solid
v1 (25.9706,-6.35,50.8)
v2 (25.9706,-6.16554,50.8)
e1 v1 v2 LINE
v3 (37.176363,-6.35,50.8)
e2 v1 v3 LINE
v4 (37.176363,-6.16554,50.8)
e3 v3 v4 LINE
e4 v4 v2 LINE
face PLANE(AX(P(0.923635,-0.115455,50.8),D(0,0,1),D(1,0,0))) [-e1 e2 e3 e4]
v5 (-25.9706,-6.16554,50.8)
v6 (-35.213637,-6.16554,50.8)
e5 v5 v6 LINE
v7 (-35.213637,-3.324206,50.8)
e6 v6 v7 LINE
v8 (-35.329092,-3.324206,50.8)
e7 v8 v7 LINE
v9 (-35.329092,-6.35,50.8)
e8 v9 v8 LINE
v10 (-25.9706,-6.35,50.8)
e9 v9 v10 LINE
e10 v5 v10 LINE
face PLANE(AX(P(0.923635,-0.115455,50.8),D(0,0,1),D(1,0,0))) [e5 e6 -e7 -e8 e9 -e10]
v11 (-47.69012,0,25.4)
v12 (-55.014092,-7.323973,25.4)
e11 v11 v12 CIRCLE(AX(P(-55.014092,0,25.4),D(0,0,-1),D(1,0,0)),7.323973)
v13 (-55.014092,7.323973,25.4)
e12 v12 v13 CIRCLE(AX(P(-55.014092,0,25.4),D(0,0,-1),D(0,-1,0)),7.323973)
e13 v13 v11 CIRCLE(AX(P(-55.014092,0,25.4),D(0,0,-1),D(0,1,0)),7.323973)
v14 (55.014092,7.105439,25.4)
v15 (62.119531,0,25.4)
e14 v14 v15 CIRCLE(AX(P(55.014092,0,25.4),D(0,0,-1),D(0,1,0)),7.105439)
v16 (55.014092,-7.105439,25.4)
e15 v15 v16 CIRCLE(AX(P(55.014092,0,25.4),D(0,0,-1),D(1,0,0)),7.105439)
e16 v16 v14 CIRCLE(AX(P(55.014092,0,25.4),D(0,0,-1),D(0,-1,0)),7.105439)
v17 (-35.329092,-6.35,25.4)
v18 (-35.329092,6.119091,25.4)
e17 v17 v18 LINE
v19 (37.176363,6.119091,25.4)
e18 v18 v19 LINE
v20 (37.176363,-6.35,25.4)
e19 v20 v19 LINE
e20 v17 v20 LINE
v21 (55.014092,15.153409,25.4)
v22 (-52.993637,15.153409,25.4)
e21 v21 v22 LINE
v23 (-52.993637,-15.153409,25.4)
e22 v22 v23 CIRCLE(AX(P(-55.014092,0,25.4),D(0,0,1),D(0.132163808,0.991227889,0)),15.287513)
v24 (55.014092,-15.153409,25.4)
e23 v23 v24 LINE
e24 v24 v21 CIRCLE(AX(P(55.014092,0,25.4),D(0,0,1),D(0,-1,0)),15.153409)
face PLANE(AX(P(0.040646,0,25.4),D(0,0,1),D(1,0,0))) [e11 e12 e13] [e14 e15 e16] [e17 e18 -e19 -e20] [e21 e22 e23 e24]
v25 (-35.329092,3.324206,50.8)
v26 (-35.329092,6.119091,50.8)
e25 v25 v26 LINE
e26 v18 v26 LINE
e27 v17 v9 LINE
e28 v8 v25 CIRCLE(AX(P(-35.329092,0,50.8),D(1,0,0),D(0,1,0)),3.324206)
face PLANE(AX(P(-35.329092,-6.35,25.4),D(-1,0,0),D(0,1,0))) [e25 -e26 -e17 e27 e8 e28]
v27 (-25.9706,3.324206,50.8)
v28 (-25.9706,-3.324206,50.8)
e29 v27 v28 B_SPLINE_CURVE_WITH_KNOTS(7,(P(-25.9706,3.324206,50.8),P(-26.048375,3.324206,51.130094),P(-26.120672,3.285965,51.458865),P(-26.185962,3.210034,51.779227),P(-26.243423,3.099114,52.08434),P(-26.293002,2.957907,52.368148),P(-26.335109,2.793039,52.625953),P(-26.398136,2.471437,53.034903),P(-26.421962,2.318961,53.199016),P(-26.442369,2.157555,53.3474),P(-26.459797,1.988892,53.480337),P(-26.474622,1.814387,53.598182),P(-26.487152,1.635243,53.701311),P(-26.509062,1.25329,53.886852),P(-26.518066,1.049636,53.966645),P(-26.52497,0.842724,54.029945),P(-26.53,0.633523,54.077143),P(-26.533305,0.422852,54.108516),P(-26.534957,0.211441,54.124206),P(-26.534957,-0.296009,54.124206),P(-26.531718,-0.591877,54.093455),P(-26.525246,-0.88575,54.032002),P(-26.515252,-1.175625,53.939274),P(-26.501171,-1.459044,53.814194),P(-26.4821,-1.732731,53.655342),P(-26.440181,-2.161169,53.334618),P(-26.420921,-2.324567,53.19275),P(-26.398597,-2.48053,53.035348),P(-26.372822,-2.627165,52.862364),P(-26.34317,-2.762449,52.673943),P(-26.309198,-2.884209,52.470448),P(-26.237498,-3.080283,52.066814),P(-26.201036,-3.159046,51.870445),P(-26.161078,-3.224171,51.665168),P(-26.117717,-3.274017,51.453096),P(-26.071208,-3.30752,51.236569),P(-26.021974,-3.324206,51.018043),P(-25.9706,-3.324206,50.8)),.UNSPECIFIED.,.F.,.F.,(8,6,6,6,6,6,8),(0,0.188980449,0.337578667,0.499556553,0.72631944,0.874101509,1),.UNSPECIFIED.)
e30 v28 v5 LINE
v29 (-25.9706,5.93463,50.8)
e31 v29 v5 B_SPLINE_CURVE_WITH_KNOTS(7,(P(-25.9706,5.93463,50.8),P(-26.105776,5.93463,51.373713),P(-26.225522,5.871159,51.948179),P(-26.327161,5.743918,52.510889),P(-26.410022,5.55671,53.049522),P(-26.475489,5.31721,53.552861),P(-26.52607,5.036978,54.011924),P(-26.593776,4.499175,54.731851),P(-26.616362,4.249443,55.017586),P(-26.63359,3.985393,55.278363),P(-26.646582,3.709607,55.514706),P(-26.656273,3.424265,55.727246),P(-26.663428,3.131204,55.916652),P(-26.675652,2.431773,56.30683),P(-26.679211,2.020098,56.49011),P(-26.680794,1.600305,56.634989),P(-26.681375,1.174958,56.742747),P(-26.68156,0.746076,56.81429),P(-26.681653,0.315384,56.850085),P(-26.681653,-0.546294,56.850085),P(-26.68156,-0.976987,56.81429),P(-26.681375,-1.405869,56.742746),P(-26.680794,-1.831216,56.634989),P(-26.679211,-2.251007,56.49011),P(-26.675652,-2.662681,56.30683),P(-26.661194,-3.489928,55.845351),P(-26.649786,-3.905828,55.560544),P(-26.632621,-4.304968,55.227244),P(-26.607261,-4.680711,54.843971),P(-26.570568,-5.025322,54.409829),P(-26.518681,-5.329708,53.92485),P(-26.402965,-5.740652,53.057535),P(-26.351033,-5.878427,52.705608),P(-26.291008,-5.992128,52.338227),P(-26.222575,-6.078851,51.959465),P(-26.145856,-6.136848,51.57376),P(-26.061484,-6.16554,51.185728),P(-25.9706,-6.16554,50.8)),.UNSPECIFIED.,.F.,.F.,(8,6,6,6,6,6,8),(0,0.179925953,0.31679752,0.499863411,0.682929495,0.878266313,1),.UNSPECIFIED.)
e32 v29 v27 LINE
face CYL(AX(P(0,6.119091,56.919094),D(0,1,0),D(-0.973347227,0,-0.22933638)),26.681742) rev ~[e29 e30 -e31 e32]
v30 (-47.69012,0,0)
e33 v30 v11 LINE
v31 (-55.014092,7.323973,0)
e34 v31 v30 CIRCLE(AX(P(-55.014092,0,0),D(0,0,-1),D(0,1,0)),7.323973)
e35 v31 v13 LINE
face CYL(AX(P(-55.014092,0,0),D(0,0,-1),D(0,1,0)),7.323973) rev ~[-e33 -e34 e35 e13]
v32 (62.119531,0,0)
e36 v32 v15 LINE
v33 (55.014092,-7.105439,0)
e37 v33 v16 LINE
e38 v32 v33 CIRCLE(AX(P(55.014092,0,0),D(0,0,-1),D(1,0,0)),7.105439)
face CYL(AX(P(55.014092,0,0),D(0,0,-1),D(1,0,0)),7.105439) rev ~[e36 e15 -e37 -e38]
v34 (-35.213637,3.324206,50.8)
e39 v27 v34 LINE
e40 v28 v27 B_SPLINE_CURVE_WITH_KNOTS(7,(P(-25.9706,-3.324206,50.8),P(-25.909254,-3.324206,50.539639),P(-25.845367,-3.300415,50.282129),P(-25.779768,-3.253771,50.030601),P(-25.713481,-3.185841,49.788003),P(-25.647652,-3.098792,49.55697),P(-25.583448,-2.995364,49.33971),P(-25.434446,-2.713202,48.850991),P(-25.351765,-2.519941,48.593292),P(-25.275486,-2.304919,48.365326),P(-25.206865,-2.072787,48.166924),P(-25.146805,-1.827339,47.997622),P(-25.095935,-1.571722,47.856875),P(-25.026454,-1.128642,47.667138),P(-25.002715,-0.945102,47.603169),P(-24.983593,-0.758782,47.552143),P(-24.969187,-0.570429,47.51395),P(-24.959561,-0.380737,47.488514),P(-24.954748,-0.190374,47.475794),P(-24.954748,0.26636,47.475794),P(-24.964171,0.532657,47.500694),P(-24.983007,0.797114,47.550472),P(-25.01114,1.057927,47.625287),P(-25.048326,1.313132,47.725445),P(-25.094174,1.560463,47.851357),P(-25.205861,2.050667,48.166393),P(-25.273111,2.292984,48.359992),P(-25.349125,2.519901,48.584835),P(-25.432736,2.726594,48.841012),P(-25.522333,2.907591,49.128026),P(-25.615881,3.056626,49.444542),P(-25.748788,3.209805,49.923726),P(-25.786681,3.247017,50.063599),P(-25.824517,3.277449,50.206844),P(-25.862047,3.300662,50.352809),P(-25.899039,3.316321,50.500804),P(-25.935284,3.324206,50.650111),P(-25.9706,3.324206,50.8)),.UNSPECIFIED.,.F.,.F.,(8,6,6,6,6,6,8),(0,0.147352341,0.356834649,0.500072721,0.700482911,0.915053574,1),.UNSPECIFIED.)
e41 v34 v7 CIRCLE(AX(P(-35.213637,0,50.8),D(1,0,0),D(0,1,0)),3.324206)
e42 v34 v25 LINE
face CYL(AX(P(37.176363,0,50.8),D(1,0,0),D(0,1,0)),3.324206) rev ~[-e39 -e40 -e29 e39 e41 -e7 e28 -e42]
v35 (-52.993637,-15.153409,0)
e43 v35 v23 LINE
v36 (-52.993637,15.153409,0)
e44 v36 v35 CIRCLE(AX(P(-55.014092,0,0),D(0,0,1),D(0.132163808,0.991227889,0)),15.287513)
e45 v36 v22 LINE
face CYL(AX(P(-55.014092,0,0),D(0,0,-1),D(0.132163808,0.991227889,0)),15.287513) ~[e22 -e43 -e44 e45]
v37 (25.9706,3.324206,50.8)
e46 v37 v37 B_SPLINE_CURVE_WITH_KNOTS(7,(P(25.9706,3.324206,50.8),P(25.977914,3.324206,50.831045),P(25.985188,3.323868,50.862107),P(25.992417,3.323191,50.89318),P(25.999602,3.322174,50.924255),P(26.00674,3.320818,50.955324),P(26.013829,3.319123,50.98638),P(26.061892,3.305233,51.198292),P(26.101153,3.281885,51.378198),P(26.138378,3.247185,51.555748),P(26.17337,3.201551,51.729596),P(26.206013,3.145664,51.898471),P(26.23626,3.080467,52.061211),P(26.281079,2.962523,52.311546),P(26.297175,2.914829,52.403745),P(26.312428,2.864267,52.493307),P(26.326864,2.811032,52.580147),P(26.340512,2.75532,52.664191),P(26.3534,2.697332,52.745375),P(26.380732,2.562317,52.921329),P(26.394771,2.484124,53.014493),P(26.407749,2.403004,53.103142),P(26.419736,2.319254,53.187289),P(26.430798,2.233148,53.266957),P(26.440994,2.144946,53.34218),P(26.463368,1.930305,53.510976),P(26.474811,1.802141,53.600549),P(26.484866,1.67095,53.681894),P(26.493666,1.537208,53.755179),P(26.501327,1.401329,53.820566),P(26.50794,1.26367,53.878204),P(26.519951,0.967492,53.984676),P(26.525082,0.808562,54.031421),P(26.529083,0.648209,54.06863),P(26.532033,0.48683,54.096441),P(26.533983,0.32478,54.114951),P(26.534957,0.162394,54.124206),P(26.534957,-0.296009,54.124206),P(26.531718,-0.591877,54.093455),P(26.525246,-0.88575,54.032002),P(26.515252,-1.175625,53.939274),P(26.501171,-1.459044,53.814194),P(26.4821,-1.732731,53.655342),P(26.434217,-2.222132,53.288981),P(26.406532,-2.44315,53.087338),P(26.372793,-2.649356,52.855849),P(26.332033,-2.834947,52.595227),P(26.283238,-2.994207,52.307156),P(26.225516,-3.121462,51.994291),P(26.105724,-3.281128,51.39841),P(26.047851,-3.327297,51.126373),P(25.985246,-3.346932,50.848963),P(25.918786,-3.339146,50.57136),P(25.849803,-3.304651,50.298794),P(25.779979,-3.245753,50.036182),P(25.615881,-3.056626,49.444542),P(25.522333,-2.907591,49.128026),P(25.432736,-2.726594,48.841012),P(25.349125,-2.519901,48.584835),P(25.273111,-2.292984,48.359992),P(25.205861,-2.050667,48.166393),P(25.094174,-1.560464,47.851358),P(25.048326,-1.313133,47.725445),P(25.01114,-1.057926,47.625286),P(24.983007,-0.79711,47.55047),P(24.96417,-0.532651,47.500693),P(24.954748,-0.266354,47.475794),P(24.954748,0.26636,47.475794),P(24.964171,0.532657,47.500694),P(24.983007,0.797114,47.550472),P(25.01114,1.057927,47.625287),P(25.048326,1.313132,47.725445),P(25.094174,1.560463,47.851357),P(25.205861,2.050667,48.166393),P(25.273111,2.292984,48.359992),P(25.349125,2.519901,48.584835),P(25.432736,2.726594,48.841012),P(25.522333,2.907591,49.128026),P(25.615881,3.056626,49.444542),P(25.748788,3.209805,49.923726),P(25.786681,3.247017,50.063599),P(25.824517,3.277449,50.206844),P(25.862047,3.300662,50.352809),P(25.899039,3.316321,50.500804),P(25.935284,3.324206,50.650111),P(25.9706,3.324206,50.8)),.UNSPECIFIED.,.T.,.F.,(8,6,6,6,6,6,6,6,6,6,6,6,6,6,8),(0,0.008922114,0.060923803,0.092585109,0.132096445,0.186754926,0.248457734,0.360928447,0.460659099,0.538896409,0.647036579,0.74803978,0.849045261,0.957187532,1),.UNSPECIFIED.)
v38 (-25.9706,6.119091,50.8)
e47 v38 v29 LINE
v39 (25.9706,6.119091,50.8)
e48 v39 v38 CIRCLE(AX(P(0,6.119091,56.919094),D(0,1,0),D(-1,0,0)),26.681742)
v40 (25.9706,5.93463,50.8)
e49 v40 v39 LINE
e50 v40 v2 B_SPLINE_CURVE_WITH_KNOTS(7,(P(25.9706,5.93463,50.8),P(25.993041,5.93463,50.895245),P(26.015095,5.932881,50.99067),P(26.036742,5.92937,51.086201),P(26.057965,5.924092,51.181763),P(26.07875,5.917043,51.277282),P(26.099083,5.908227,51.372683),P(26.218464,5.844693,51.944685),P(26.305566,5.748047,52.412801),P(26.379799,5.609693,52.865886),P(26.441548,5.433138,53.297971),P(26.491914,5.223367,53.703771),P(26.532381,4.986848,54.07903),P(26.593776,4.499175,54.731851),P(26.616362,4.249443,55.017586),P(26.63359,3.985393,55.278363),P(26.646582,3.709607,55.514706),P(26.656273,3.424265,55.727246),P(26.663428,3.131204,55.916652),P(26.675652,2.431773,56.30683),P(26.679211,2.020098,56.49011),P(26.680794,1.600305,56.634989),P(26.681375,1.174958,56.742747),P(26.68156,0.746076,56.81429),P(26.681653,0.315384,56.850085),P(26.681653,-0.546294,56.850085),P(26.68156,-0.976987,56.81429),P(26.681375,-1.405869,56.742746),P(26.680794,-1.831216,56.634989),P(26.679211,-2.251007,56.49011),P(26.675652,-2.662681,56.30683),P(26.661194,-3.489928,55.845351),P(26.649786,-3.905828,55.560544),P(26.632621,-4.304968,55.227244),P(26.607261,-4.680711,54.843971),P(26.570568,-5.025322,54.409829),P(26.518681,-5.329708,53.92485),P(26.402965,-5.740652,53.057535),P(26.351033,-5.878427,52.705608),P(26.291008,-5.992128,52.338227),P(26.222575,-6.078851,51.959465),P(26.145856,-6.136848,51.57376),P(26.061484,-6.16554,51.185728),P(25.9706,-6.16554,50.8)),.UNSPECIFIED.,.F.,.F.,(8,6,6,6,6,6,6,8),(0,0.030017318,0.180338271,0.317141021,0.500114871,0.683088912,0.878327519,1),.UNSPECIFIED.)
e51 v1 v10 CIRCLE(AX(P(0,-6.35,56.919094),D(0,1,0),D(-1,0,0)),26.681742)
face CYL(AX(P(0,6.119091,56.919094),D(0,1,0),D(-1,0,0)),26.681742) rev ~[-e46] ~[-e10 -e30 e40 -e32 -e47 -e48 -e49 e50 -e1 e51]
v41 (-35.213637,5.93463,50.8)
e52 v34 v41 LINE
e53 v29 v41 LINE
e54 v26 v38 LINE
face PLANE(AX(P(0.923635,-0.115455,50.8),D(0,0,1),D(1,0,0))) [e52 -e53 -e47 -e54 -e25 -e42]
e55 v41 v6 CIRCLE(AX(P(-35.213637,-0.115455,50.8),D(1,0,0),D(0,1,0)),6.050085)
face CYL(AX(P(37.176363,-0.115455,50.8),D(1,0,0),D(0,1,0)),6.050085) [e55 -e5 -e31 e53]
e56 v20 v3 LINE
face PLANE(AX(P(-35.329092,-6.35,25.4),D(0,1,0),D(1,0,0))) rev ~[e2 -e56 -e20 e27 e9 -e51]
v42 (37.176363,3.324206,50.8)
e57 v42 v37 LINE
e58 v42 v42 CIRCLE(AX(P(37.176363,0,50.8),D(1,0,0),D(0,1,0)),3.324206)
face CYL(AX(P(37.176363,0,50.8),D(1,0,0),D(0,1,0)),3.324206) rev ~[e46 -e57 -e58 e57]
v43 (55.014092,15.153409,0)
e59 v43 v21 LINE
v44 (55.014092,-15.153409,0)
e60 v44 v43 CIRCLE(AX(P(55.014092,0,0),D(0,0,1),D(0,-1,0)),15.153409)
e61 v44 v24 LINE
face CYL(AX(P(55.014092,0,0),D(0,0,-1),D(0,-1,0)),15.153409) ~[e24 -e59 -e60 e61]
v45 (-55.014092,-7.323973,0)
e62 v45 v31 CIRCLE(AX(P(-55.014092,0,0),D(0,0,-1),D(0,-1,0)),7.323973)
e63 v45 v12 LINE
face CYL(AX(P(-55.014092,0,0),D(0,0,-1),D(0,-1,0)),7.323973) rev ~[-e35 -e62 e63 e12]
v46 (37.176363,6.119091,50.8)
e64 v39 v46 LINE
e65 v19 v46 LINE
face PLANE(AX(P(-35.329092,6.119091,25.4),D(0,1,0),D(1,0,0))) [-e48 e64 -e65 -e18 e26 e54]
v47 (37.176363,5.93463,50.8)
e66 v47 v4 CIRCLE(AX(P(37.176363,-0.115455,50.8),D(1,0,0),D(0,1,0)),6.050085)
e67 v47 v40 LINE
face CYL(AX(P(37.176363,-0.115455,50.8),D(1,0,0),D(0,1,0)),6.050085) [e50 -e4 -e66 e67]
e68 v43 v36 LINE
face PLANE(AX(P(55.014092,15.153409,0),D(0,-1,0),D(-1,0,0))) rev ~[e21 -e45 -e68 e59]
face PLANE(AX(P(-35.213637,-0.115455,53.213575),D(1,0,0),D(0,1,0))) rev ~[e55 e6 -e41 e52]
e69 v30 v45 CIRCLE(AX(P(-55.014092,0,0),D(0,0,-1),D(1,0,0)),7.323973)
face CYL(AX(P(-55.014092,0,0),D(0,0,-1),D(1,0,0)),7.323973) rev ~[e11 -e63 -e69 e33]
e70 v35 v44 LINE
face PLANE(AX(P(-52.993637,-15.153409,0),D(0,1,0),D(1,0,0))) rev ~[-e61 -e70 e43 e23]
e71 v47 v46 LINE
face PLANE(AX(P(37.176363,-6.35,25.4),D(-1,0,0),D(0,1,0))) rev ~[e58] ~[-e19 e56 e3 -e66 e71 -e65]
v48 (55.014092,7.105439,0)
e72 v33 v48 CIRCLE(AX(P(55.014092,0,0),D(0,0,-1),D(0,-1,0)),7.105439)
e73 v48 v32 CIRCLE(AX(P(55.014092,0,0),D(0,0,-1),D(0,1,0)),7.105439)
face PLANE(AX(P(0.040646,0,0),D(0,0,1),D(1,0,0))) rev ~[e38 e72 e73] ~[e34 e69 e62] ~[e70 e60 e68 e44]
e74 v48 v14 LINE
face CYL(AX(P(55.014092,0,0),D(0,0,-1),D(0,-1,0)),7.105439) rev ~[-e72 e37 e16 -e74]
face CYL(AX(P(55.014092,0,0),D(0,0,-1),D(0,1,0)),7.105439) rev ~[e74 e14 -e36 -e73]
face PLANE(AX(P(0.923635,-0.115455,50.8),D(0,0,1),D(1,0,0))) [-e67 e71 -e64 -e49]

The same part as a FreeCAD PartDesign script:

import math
import FreeCAD as App
import Part
import Sketcher
Q = App.Units.Quantity

doc = App.newDocument("Part")
body = doc.addObject("PartDesign::Body", "Body")

# Sketch on XY plane
sketch1 = body.newObject("Sketcher::SketchObject", "Sketch")
sketch1.AttachmentSupport = (doc.getObject("XY_Plane"), [""])
sketch1.MapMode = "FlatFace"
sketch1.addGeometry(Part.LineSegment(App.Vector(55, 15, 0), App.Vector(-53, 15, 0)), False)
sketch1.addGeometry(Part.ArcOfCircle(Part.Circle(App.Vector(-55, 0, 0), App.Vector(0, 0, 1), 15), math.radians(82), math.radians(278)), False)
sketch1.addGeometry(Part.LineSegment(App.Vector(-53, -15, 0), App.Vector(55, -15, 0)), False)
sketch1.addGeometry(Part.ArcOfCircle(Part.Circle(App.Vector(55, 0, 0), App.Vector(0, 0, 1), 15), math.radians(-90), math.radians(90)), False)
sketch1.addGeometry(Part.ArcOfCircle(Part.Circle(App.Vector(-55, 0, 0), App.Vector(0, 0, 1), 7), math.radians(-90), math.radians(0)), False)
sketch1.addGeometry(Part.ArcOfCircle(Part.Circle(App.Vector(-55, 0, 0), App.Vector(0, 0, 1), 7), math.radians(90), math.radians(270)), False)
sketch1.addGeometry(Part.ArcOfCircle(Part.Circle(App.Vector(-55, 0, 0), App.Vector(0, 0, 1), 7), math.radians(0), math.radians(90)), False)
sketch1.addGeometry(Part.ArcOfCircle(Part.Circle(App.Vector(55, 0, 0), App.Vector(0, 0, 1), 7), math.radians(-90), math.radians(0)), False)
sketch1.addGeometry(Part.ArcOfCircle(Part.Circle(App.Vector(55, 0, 0), App.Vector(0, 0, 1), 7), math.radians(90), math.radians(270)), False)
sketch1.addGeometry(Part.ArcOfCircle(Part.Circle(App.Vector(55, 0, 0), App.Vector(0, 0, 1), 7), math.radians(0), math.radians(90)), False)
sketch1.addConstraint(Sketcher.Constraint("Coincident", 0, 2, 1, 1))
sketch1.addConstraint(Sketcher.Constraint("Coincident", 1, 2, 2, 1))
sketch1.addConstraint(Sketcher.Constraint("Tangent", 2, 2, 3, 1))
sketch1.addConstraint(Sketcher.Constraint("Tangent", 3, 2, 0, 1))
sketch1.addConstraint(Sketcher.Constraint("Tangent", 4, 1, 5, 2))
sketch1.addConstraint(Sketcher.Constraint("Tangent", 5, 1, 6, 2))
sketch1.addConstraint(Sketcher.Constraint("Tangent", 6, 1, 4, 2))
sketch1.addConstraint(Sketcher.Constraint("Tangent", 7, 1, 8, 2))
sketch1.addConstraint(Sketcher.Constraint("Tangent", 8, 1, 9, 2))
sketch1.addConstraint(Sketcher.Constraint("Tangent", 9, 1, 7, 2))
sketch1.addConstraint(Sketcher.Constraint("Horizontal", 0))
sketch1.addConstraint(Sketcher.Constraint("Horizontal", 2))
sketch1.addConstraint(Sketcher.Constraint("Coincident", 4, 3, 1, 3))
sketch1.addConstraint(Sketcher.Constraint("Coincident", 7, 3, 3, 3))
sketch1.addConstraint(Sketcher.Constraint("Symmetric", 1, 3, 3, 3, -1, 1))
sketch1.addConstraint(Sketcher.Constraint("Symmetric", 4, 1, 5, 1, -1))
sketch1.addConstraint(Sketcher.Constraint("PointOnObject", 6, 1, -1))
sketch1.addConstraint(Sketcher.Constraint("PointOnObject", 9, 1, -1))
sketch1.addConstraint(Sketcher.Constraint("Vertical", 6, 3, 4, 1))
sketch1.addConstraint(Sketcher.Constraint("Vertical", 3, 2, 7, 1))
sketch1.addConstraint(Sketcher.Constraint("Vertical", 7, 1, 8, 1))
sketch1.addConstraint(Sketcher.Constraint("Radius", 3, 15.153409))
sketch1.addConstraint(Sketcher.Constraint("Radius", 7, 7.105439))
sketch1.addConstraint(Sketcher.Constraint("Radius", 1, 15.287513))
sketch1.addConstraint(Sketcher.Constraint("Radius", 4, 7.323973))
sketch1.addConstraint(Sketcher.Constraint("DistanceX", 0, 2, 0, 1, 108.007729))
pad1 = body.newObject("PartDesign::Pad", "Pad")
pad1.Profile = sketch1
pad1.Length = Q("1 in")

# Sketch on XY plane
sketch2 = body.newObject("Sketcher::SketchObject", "Sketch001")
sketch2.AttachmentSupport = (doc.getObject("XY_Plane"), [""])
sketch2.MapMode = "FlatFace"
sketch2.AttachmentOffset = App.Placement(App.Vector(0, 0, 1 * 25.4), App.Rotation())
sketch2.addGeometry(Part.LineSegment(App.Vector(-35, 6, 0), App.Vector(-35, -6, 0)), False)
sketch2.addGeometry(Part.LineSegment(App.Vector(-35, -6, 0), App.Vector(37, -6, 0)), False)
sketch2.addGeometry(Part.LineSegment(App.Vector(37, -6, 0), App.Vector(37, 6, 0)), False)
sketch2.addGeometry(Part.LineSegment(App.Vector(37, 6, 0), App.Vector(-35, 6, 0)), False)
sketch2.addConstraint(Sketcher.Constraint("Coincident", 0, 2, 1, 1))
sketch2.addConstraint(Sketcher.Constraint("Coincident", 1, 2, 2, 1))
sketch2.addConstraint(Sketcher.Constraint("Coincident", 2, 2, 3, 1))
sketch2.addConstraint(Sketcher.Constraint("Coincident", 3, 2, 0, 1))
sketch2.addConstraint(Sketcher.Constraint("Vertical", 0))
sketch2.addConstraint(Sketcher.Constraint("Horizontal", 1))
sketch2.addConstraint(Sketcher.Constraint("Vertical", 2))
sketch2.addConstraint(Sketcher.Constraint("Horizontal", 3))
sketch2.addConstraint(Sketcher.Constraint("DistanceY", 0, 2, -1, 1, Q("0.25 in")))
sketch2.addConstraint(Sketcher.Constraint("DistanceY", 0, 2, 0, 1, 12.469091))
sketch2.addConstraint(Sketcher.Constraint("DistanceX", 1, 1, 1, 2, 72.505455))
sketch2.addConstraint(Sketcher.Constraint("DistanceX", 0, 2, -1, 1, 35.329092))
pad2 = body.newObject("PartDesign::Pad", "Pad001")
pad2.Profile = sketch2
pad2.Length = Q("1 in")

# Sketch on YZ plane
sketch3 = body.newObject("Sketcher::SketchObject", "Sketch002")
sketch3.AttachmentSupport = (doc.getObject("YZ_Plane"), [""])
sketch3.MapMode = "FlatFace"
sketch3.AttachmentOffset = App.Placement(App.Vector(0, 0, 37.176363), App.Rotation())
sketch3.addGeometry(Part.LineSegment(App.Vector(3, 50.8, 0), App.Vector(5.9, 50.8, 0)), False)
sketch3.addGeometry(Part.ArcOfCircle(Part.Circle(App.Vector(-0.1, 50.8, 0), App.Vector(0, 0, 1), 6.1), math.radians(0), math.radians(180)), False)
sketch3.addGeometry(Part.LineSegment(App.Vector(-6.2, 50.8, 0), App.Vector(-3.3, 50.8, 0)), False)
sketch3.addGeometry(Part.ArcOfCircle(Part.Circle(App.Vector(-0.1, 50.8, 0), App.Vector(0, 0, 1), 3.2), math.radians(0), math.radians(180)), False)
sketch3.addConstraint(Sketcher.Constraint("Coincident", 0, 2, 1, 1))
sketch3.addConstraint(Sketcher.Constraint("Coincident", 1, 2, 2, 1))
sketch3.addConstraint(Sketcher.Constraint("Coincident", 2, 2, 3, 2))
sketch3.addConstraint(Sketcher.Constraint("Coincident", 3, 1, 0, 1))
sketch3.addConstraint(Sketcher.Constraint("Horizontal", 0))
sketch3.addConstraint(Sketcher.Constraint("Horizontal", 2))
sketch3.addConstraint(Sketcher.Constraint("Coincident", 3, 3, 1, 3))
sketch3.addConstraint(Sketcher.Constraint("Horizontal", 3, 3, 0, 2))
sketch3.addConstraint(Sketcher.Constraint("Horizontal", 0, 2, 1, 2))
sketch3.addConstraint(Sketcher.Constraint("DistanceY", -1, 1, 1, 3, Q("2 in")))
sketch3.addConstraint(Sketcher.Constraint("Radius", 1, 6.050085))
sketch3.addConstraint(Sketcher.Constraint("Radius", 3, 3.153408))
sketch3.addConstraint(Sketcher.Constraint("DistanceX", -1, 1, 0, 2, 5.93463))
pad3 = body.newObject("PartDesign::Pad", "Pad002")
pad3.Profile = sketch3
pad3.Length = Q("2.85 in")
pad3.Reversed = True

# Sketch on YZ plane
sketch4 = body.newObject("Sketcher::SketchObject", "Sketch003")
sketch4.AttachmentSupport = (doc.getObject("YZ_Plane"), [""])
sketch4.MapMode = "FlatFace"
sketch4.AttachmentOffset = App.Placement(App.Vector(0, 0, 37.176363), App.Rotation())
sketch4.addGeometry(Part.Circle(App.Vector(0, 50.8, 0), App.Vector(0, 0, 1), 3.3), False)
sketch4.addGeometry(Part.LineSegment(App.Vector(3, 50.8, 0), App.Vector(-3.3, 50.8, 0)), False)
sketch4.addGeometry(Part.ArcOfCircle(Part.Circle(App.Vector(-0.1, 50.8, 0), App.Vector(0, 0, 1), 3.2), math.radians(0), math.radians(180)), False)
sketch4.addConstraint(Sketcher.Constraint("Coincident", 1, 1, 2, 1))
sketch4.addConstraint(Sketcher.Constraint("Coincident", 2, 2, 1, 2))
sketch4.addConstraint(Sketcher.Constraint("Horizontal", 1))
sketch4.addConstraint(Sketcher.Constraint("PointOnObject", 0, 3, -2))
sketch4.addConstraint(Sketcher.Constraint("Horizontal", 0, 3, 2, 3))
sketch4.addConstraint(Sketcher.Constraint("Horizontal", 2, 3, 1, 1))
sketch4.addConstraint(Sketcher.Constraint("DistanceY", -1, 1, 0, 3, Q("2 in")))
sketch4.addConstraint(Sketcher.Constraint("DistanceX", 1, 2, 1, 1, Q("0.2482998 in")))
sketch4.addConstraint(Sketcher.Constraint("Diameter", 0, 6.648412))
sketch4.addConstraint(Sketcher.Constraint("DistanceX", 2, 3, -1, 1, 0.115455))
pocket1 = body.newObject("PartDesign::Pocket", "Pocket")
pocket1.Profile = sketch4
pocket1.Type = "ThroughAll"

# Sketch on XZ plane
sketch5 = body.newObject("Sketcher::SketchObject", "Sketch004")
sketch5.AttachmentSupport = (doc.getObject("XZ_Plane"), [""])
sketch5.MapMode = "FlatFace"
sketch5.AttachmentOffset = App.Placement(App.Vector(0, 0, -6.119091), App.Rotation())
sketch5.addGeometry(Part.ArcOfCircle(Part.Circle(App.Vector(0, 57, 0), App.Vector(0, 0, 1), 27), math.radians(-180), math.radians(-166.74)), False)
sketch5.addGeometry(Part.ArcOfCircle(Part.Circle(App.Vector(0, 57, 0), App.Vector(0, 0, 1), 27), math.radians(-167), math.radians(180)), False)
sketch5.addConstraint(Sketcher.Constraint("Tangent", 0, 1, 1, 2))
sketch5.addConstraint(Sketcher.Constraint("Coincident", 1, 1, 0, 2))
sketch5.addConstraint(Sketcher.Constraint("PointOnObject", 0, 3, -2))
sketch5.addConstraint(Sketcher.Constraint("Horizontal", 1, 3, 0, 1))
sketch5.addConstraint(Sketcher.Constraint("DistanceY", -1, 1, 1, 1, Q("2 in")))
sketch5.addConstraint(Sketcher.Constraint("Radius", 0, 26.681742))
sketch5.addConstraint(Sketcher.Constraint("DistanceX", 1, 1, -1, 1, 25.9706))
pocket2 = body.newObject("PartDesign::Pocket", "Pocket001")
pocket2.Profile = sketch5
pocket2.Type = "ThroughAll"
pocket2.Reversed = True

doc.recompute()
